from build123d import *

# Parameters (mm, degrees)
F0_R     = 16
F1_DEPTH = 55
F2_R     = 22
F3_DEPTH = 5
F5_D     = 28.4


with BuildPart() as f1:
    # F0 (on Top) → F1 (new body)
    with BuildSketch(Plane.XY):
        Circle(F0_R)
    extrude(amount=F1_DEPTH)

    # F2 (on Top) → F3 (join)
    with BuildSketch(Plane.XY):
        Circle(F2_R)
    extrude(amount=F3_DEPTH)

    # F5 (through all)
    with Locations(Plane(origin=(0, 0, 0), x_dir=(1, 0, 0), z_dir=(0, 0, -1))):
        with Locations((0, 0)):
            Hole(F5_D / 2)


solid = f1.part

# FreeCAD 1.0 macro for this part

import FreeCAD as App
import Part
import Sketcher
Q = App.Units.Quantity

doc = App.newDocument("Part")
body = doc.addObject("PartDesign::Body", "Body")

# Sketch on XY plane
sketch1 = doc.addObject("Sketcher::SketchObject", "Sketch")
body.addObject(sketch1)
sketch1.AttachmentSupport = (doc.XY_Plane, [""])
sketch1.MapMode = "FlatFace"
sketch1.addGeometry(Part.Circle(App.Vector(0, 0, 0), App.Vector(0, 0, 1), 16), False)
sketch1.addConstraint([
    Sketcher.Constraint("Coincident", 0, 3, -1, 1),
    Sketcher.Constraint("Diameter", 0, Q("32 mm")),
])
pad1 = doc.addObject("PartDesign::Pad", "Pad")
body.addObject(pad1)
pad1.Profile = sketch1
pad1.Length = 55

# Sketch on XY plane
sketch2 = doc.addObject("Sketcher::SketchObject", "Sketch001")
body.addObject(sketch2)
sketch2.AttachmentSupport = (doc.XY_Plane, [""])
sketch2.MapMode = "FlatFace"
sketch2.addGeometry(Part.Circle(App.Vector(0, 0, 0), App.Vector(0, 0, 1), 22), False)
sketch2.addConstraint([
    Sketcher.Constraint("Coincident", 0, 3, -1, 1),
    Sketcher.Constraint("Diameter", 0, Q("44 mm")),
])
pad2 = doc.addObject("PartDesign::Pad", "Pad001")
body.addObject(pad2)
pad2.Profile = sketch2
pad2.Length = 5

# Sketch on XY plane
sketch3 = doc.addObject("Sketcher::SketchObject", "Sketch002")
body.addObject(sketch3)
sketch3.AttachmentSupport = (doc.XY_Plane, [""])
sketch3.MapMode = "FlatFace"
sketch3.addGeometry(Part.Circle(App.Vector(0, 0, 0), App.Vector(0, 0, 1), 14), False)
sketch3.addConstraint([
    Sketcher.Constraint("Coincident", 0, 3, -1, 1),
    Sketcher.Constraint("Diameter", 0, Q("28.4 mm")),
])
doc.recompute()
hole = doc.addObject("PartDesign::Hole", "Hole")
body.addObject(hole)
hole.Profile = sketch3
hole.ThreadType = "None"
hole.Diameter = 28.4
hole.DepthType = "ThroughAll"
hole.Reversed = True

doc.recompute()
